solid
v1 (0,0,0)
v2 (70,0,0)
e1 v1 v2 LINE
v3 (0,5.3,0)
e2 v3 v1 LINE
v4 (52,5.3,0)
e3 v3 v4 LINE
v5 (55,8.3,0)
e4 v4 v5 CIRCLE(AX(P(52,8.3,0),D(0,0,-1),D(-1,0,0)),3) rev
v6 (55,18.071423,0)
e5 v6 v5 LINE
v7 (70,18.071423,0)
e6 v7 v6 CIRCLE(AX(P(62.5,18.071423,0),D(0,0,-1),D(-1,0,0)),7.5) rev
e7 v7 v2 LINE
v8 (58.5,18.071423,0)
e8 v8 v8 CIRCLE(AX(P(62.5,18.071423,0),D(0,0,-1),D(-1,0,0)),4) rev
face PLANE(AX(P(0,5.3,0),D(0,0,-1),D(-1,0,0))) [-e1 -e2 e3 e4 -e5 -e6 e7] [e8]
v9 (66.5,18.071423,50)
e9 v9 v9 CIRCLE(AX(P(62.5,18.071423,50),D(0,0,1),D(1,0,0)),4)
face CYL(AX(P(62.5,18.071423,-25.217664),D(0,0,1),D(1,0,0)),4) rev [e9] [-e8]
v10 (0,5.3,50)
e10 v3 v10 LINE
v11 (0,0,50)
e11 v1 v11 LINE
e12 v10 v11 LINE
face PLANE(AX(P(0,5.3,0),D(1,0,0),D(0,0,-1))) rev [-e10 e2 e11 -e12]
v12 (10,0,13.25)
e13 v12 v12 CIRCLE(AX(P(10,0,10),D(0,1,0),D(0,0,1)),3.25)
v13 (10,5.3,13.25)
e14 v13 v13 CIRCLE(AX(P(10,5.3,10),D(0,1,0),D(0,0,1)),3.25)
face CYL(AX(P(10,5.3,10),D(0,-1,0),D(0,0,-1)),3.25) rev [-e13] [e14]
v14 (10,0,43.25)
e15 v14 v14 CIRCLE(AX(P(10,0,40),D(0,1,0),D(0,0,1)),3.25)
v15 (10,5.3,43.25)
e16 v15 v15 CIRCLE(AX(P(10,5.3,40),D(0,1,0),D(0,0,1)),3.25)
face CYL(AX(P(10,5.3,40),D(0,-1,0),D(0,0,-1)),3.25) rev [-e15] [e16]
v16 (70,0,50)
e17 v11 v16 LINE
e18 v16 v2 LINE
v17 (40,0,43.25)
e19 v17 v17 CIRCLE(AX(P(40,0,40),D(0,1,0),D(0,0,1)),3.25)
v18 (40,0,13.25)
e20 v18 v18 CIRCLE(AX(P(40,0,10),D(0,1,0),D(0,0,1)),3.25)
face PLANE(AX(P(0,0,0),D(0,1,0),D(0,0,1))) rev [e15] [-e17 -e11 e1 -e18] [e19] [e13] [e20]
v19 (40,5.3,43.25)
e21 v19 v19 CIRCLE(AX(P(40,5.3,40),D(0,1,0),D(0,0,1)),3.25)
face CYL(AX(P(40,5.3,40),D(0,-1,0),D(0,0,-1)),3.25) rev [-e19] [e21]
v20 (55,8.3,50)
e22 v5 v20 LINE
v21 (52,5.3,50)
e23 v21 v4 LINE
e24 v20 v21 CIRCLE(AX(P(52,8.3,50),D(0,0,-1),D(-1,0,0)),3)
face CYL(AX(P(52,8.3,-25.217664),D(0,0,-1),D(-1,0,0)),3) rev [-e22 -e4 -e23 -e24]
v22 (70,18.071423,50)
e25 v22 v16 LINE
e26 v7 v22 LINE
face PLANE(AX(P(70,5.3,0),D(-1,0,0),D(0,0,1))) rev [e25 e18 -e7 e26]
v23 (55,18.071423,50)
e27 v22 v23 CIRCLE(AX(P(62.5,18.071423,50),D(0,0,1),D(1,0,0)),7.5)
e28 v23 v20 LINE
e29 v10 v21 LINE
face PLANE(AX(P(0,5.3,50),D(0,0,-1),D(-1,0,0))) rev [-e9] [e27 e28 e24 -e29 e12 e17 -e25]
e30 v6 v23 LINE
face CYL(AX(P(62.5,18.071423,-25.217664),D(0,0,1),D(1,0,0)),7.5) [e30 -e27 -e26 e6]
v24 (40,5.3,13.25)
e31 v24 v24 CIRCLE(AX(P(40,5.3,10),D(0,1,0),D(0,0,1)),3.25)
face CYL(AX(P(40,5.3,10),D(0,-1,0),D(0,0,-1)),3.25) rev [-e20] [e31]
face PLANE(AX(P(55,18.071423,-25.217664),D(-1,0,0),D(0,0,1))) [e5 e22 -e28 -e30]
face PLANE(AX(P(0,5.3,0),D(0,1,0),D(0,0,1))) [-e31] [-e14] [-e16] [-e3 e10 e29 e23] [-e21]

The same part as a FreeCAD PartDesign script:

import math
import FreeCAD as App
import Part
import Sketcher

V = App.Vector
Q = App.Units.Quantity


def edges_at(feature, points):
    """Names of the edges that pass closest to the given points."""
    edges = feature.Shape.Edges
    near = lambda p: min(range(len(edges)), key=lambda i: edges[i].distToShape(Part.Vertex(*p))[0])
    return sorted({f"Edge{near(p) + 1}" for p in points})

doc = App.newDocument("Part")
body = doc.addObject("PartDesign::Body", "Body")

# Sketch on XZ plane
sketch1 = body.newObject("Sketcher::SketchObject", "Sketch")
sketch1.AttachmentSupport = (doc.getObject("XZ_Plane"), [""])
sketch1.MapMode = "FlatFace"
sketch1.addGeometry(Part.LineSegment(V(0, 0, 0), V(0, 50, 0)), False)
sketch1.addGeometry(Part.LineSegment(V(0, 50, 0), V(70, 50, 0)), False)
sketch1.addGeometry(Part.LineSegment(V(70, 50, 0), V(70, 0, 0)), False)
sketch1.addGeometry(Part.LineSegment(V(70, 0, 0), V(0, 0, 0)), False)
sketch1.addGeometry(Part.Circle(V(10, 40, 0), V(0, 0, 1), 3.25), False)
sketch1.addGeometry(Part.Circle(V(40, 40, 0), V(0, 0, 1), 3.25), False)
sketch1.addGeometry(Part.Circle(V(10, 10, 0), V(0, 0, 1), 3.25), False)
sketch1.addGeometry(Part.Circle(V(40, 10, 0), V(0, 0, 1), 3.25), False)
sketch1.addConstraint(Sketcher.Constraint("Coincident", 0, 2, 1, 1))
sketch1.addConstraint(Sketcher.Constraint("Coincident", 1, 2, 2, 1))
sketch1.addConstraint(Sketcher.Constraint("Coincident", 2, 2, 3, 1))
sketch1.addConstraint(Sketcher.Constraint("Coincident", 3, 2, 0, 1))
sketch1.addConstraint(Sketcher.Constraint("Vertical", 0))
sketch1.addConstraint(Sketcher.Constraint("Horizontal", 1))
sketch1.addConstraint(Sketcher.Constraint("Vertical", 2))
sketch1.addConstraint(Sketcher.Constraint("Horizontal", 3))
sketch1.addConstraint(Sketcher.Constraint("Coincident", 3, 2, -1, 1))
sketch1.addConstraint(Sketcher.Constraint("Equal", 4, 5))
sketch1.addConstraint(Sketcher.Constraint("Equal", 5, 6))
sketch1.addConstraint(Sketcher.Constraint("Equal", 6, 7))
sketch1.addConstraint(Sketcher.Constraint("Horizontal", 4, 3, 5, 3))
sketch1.addConstraint(Sketcher.Constraint("Horizontal", 6, 3, 7, 3))
sketch1.addConstraint(Sketcher.Constraint("Vertical", 4, 3, 6, 3))
sketch1.addConstraint(Sketcher.Constraint("Vertical", 5, 3, 7, 3))
sketch1.addConstraint(Sketcher.Constraint("Diameter", 4, Q("6.5 mm")))
sketch1.addConstraint(Sketcher.Constraint("DistanceX", 1, 1, 1, 2, Q("70 mm")))
sketch1.addConstraint(Sketcher.Constraint("DistanceY", 0, 1, 0, 2, Q("50 mm")))
sketch1.addConstraint(Sketcher.Constraint("DistanceX", -1, 1, 4, 3, Q("10 mm")))
sketch1.addConstraint(Sketcher.Constraint("DistanceY", -1, 1, 4, 3, Q("40 mm")))
sketch1.addConstraint(Sketcher.Constraint("DistanceX", -1, 1, 5, 3, Q("40 mm")))
sketch1.addConstraint(Sketcher.Constraint("DistanceY", -1, 1, 6, 3, Q("10 mm")))
pad1 = body.newObject("PartDesign::Pad", "Pad")
pad1.Profile = sketch1
pad1.Length = 5.3
pad1.Reversed = True

# Sketch on XY plane
sketch2 = body.newObject("Sketcher::SketchObject", "Sketch001")
sketch2.AttachmentSupport = (doc.getObject("XY_Plane"), [""])
sketch2.MapMode = "FlatFace"
sketch2.AttachmentOffset = App.Placement(V(0, 0, 50), App.Rotation())
sketch2.addGeometry(Part.LineSegment(V(55, 18.071423, 0), V(55, 5.3, 0)), False)
sketch2.addGeometry(Part.LineSegment(V(55, 5.3, 0), V(70, 5.3, 0)), False)
sketch2.addGeometry(Part.LineSegment(V(70, 5.3, 0), V(70, 18.071423, 0)), False)
sketch2.addGeometry(Part.ArcOfCircle(Part.Circle(V(62.5, 18.071423, 0), V(0, 0, 1), 7.5), math.radians(0), math.radians(180)), False)
sketch2.addGeometry(Part.Circle(V(62.5, 18.071423, 0), V(0, 0, 1), 4), False)
sketch2.addConstraint(Sketcher.Constraint("Coincident", 0, 2, 1, 1))
sketch2.addConstraint(Sketcher.Constraint("Coincident", 1, 2, 2, 1))
sketch2.addConstraint(Sketcher.Constraint("Tangent", 2, 2, 3, 1))
sketch2.addConstraint(Sketcher.Constraint("Tangent", 3, 2, 0, 1))
sketch2.addConstraint(Sketcher.Constraint("Vertical", 0))
sketch2.addConstraint(Sketcher.Constraint("Horizontal", 1))
sketch2.addConstraint(Sketcher.Constraint("Vertical", 2))
sketch2.addConstraint(Sketcher.Constraint("Coincident", 4, 3, 3, 3))
sketch2.addConstraint(Sketcher.Constraint("Diameter", 4, Q("8 mm")))
sketch2.addConstraint(Sketcher.Constraint("Radius", 3, Q("7.5 mm")))
sketch2.addConstraint(Sketcher.Constraint("DistanceX", -1, 1, 0, 2, Q("55 mm")))
sketch2.addConstraint(Sketcher.Constraint("DistanceY", -1, 1, 0, 2, Q("5.3 mm")))
sketch2.addConstraint(Sketcher.Constraint("DistanceY", 0, 2, 0, 1, Q("12.771423 mm")))
pad2 = body.newObject("PartDesign::Pad", "Pad001")
pad2.Profile = sketch2
pad2.Length = 50
pad2.Reversed = True
doc.recompute()

fillet = body.newObject("PartDesign::Fillet", "Fillet")
fillet.Base = (pad2, edges_at(pad2, [(55, 5.3, 25)]))
fillet.Radius = 3

doc.recompute()
